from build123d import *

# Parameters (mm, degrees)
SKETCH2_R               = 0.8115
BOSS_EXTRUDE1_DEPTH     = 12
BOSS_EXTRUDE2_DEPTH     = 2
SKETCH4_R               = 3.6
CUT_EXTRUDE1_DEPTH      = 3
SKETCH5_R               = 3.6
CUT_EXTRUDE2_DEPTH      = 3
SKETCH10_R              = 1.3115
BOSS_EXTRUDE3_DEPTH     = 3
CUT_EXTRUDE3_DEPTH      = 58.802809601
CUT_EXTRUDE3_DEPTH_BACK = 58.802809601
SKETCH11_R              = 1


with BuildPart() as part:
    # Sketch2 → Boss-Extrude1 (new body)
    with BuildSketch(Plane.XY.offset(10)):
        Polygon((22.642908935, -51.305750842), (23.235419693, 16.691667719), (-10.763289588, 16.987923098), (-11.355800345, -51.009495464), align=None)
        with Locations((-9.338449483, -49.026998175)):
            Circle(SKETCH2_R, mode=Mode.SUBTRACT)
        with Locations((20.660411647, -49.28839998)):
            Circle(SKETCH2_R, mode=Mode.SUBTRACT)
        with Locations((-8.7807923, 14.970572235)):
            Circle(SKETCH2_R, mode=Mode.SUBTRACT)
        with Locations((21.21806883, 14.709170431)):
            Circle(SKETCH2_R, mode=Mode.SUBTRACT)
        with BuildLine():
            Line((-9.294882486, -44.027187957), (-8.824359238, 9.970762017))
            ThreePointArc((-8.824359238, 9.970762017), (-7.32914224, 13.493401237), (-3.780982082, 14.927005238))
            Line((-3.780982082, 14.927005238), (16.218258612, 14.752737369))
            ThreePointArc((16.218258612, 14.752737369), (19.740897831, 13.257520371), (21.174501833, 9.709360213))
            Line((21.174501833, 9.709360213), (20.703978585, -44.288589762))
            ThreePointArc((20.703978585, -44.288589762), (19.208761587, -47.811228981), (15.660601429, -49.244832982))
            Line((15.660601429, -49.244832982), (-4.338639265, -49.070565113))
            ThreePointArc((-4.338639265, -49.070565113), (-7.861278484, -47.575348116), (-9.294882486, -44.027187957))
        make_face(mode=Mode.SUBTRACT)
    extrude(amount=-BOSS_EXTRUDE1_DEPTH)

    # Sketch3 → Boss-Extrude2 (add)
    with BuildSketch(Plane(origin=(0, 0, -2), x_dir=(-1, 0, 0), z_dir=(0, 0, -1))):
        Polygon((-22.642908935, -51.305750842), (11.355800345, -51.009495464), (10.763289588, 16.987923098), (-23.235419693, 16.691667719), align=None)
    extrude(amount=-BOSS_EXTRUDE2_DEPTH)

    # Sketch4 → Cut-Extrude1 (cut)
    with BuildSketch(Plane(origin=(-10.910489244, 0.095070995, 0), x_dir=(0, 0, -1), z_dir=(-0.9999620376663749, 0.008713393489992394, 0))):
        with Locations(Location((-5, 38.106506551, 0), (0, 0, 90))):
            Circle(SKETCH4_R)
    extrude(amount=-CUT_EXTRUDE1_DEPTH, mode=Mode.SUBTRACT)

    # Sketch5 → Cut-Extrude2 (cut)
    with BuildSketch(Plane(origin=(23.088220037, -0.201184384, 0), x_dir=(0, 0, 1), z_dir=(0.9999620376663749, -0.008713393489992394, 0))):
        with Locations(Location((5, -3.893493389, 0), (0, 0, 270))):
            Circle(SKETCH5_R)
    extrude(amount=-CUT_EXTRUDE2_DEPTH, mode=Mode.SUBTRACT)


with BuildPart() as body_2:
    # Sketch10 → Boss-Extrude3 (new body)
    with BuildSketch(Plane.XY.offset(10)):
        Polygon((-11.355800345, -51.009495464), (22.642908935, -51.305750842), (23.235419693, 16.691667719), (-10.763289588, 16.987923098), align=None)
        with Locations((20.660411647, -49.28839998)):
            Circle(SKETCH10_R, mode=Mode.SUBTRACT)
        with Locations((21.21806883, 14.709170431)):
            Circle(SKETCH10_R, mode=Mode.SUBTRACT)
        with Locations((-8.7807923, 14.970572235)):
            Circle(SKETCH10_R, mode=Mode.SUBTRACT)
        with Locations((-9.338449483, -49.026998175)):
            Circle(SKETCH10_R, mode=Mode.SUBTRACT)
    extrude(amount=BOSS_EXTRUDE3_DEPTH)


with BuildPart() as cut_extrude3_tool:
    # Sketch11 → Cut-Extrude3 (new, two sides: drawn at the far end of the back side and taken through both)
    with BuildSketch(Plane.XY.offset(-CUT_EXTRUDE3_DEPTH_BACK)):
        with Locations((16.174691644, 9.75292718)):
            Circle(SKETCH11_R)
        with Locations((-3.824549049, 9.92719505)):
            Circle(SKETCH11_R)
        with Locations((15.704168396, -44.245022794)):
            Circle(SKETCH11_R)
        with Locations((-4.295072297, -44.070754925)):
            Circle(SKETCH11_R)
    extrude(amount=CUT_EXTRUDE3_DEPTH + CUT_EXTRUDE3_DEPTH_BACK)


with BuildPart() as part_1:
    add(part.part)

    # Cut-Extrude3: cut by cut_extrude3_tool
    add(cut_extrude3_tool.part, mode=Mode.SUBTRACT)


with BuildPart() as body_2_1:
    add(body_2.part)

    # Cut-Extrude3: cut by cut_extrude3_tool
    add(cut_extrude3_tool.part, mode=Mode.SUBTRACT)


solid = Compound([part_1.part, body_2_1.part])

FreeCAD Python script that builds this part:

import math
import FreeCAD as App
import Part
import Sketcher

V = App.Vector


def add_polygon(sketch, points):
    """Adds a closed chain of lines whose ends are joined by coincident constraints."""
    first, n = sketch.GeometryCount, len(points)
    for a, b in zip(points, points[1:] + points[:1]):
        sketch.addGeometry(Part.LineSegment(App.Vector(*a, 0), App.Vector(*b, 0)), False)
    for i in range(n):
        sketch.addConstraint(Sketcher.Constraint("Coincident", first + i, 2, first + (i + 1) % n, 1))

doc = App.newDocument("Part")
body = doc.addObject("PartDesign::Body", "Body")

# Sketch on XY plane
sketch1 = body.newObject("Sketcher::SketchObject", "Sketch")
sketch1.AttachmentSupport = (doc.getObject("XY_Plane"), [""])
sketch1.MapMode = "FlatFace"
sketch1.AttachmentOffset = App.Placement(V(0, 0, 10), App.Rotation())
add_polygon(sketch1, [(22.642909, -51.305751), (23.23542, 16.691668), (-10.76329, 16.987923), (-11.3558, -51.009495)])  # lines 0-3
sketch1.addGeometry(Part.Circle(V(-9.338449, -49.026998, 0), V(0, 0, 1), 0.8115), False)  # 4
sketch1.addGeometry(Part.Circle(V(20.660412, -49.2884, 0), V(0, 0, 1), 0.8115), False)  # 5
sketch1.addGeometry(Part.ArcOfCircle(Part.Circle(V(-4.295072, -44.070755, 0), V(0, 0, 1), 5), math.radians(179.500753), math.radians(269.500753)), False)  # 6
sketch1.addGeometry(Part.LineSegment(V(-9.294882, -44.027188, 0), V(-8.824359, 9.970762, 0)), False)  # 7
sketch1.addGeometry(Part.ArcOfCircle(Part.Circle(V(-3.824549, 9.927195, 0), V(0, 0, 1), 5), math.radians(89.500753), math.radians(179.500753)), False)  # 8
sketch1.addGeometry(Part.LineSegment(V(-3.780982, 14.927005, 0), V(16.218259, 14.752737, 0)), False)  # 9
sketch1.addGeometry(Part.ArcOfCircle(Part.Circle(V(16.174692, 9.752927, 0), V(0, 0, 1), 5), math.radians(-0.499247), math.radians(89.500753)), False)  # 10
sketch1.addGeometry(Part.LineSegment(V(21.174502, 9.70936, 0), V(20.703979, -44.28859, 0)), False)  # 11
sketch1.addGeometry(Part.ArcOfCircle(Part.Circle(V(15.704168, -44.245023, 0), V(0, 0, 1), 5), math.radians(-90.499247), math.radians(-0.499247)), False)  # 12
sketch1.addGeometry(Part.LineSegment(V(15.660601, -49.244833, 0), V(-4.338639, -49.070565, 0)), False)  # 13
sketch1.addGeometry(Part.Circle(V(-8.780792, 14.970572, 0), V(0, 0, 1), 0.8115), False)  # 14
sketch1.addGeometry(Part.Circle(V(21.218069, 14.70917, 0), V(0, 0, 1), 0.8115), False)  # 15
sketch1.addConstraint([
    Sketcher.Constraint("Tangent", 6, 1, 7, 1),
    Sketcher.Constraint("Tangent", 7, 2, 8, 2),
    Sketcher.Constraint("Tangent", 8, 1, 9, 1),
    Sketcher.Constraint("Tangent", 9, 2, 10, 2),
    Sketcher.Constraint("Tangent", 10, 1, 11, 1),
    Sketcher.Constraint("Tangent", 11, 2, 12, 2),
    Sketcher.Constraint("Tangent", 12, 1, 13, 1),
    Sketcher.Constraint("Tangent", 13, 2, 6, 2),
    Sketcher.Constraint("Equal", 4, 5),
    Sketcher.Constraint("Equal", 6, 8),
    Sketcher.Constraint("Equal", 8, 10),
    Sketcher.Constraint("Equal", 10, 12),
    Sketcher.Constraint("Equal", 5, 14),
    Sketcher.Constraint("Equal", 14, 15),
    Sketcher.Constraint("Perpendicular", 0, 1),
    Sketcher.Constraint("Perpendicular", 1, 2),
    Sketcher.Constraint("Perpendicular", 2, 3),
    Sketcher.Constraint("Perpendicular", 3, 7),
    Sketcher.Constraint("Perpendicular", 7, 9),
    Sketcher.Constraint("Perpendicular", 9, 11),
    Sketcher.Constraint("Perpendicular", 11, 13),
    Sketcher.Constraint("Radius", 6, 5.0),
    Sketcher.Constraint("Distance", 0, 68.0),
    Sketcher.Constraint("Distance", 1, 34.0),
    Sketcher.Constraint("Distance", 7, 54.0),
    Sketcher.Constraint("Distance", 9, 20.0),
    Sketcher.Constraint("Diameter", 4, 1.623),
    Sketcher.Constraint("DistanceY", 4, 3, -1, 1, 49.026998),
    Sketcher.Constraint("DistanceY", 5, 3, -1, 1, 49.2884),
    Sketcher.Constraint("DistanceX", 2, 2, -1, 1, 11.3558),
    Sketcher.Constraint("DistanceX", -1, 1, 10, 1, 21.174502),
    Sketcher.Constraint("DistanceX", -1, 1, 12, 1, 15.660601),
    Sketcher.Constraint("DistanceX", 4, 3, 8, 3, 5.5139),
    Sketcher.Constraint("DistanceY", 15, 3, 14, 3, 0.261402),
    Sketcher.Constraint("DistanceX", 12, 3, 15, 3, 5.5139),
    Sketcher.Constraint("DistanceX", -1, 1, 5, 3, 20.660412),
    Sketcher.Constraint("DistanceY", -1, 1, 15, 3, 14.70917),
    Sketcher.Constraint("DistanceY", 3, 2, -1, 1, 51.305751),
    Sketcher.Constraint("DistanceY", -1, 1, 10, 1, 9.70936),
    Sketcher.Constraint("DistanceX", 14, 3, 6, 3, 4.48572),
])
pad1 = body.newObject("PartDesign::Pad", "Pad")
pad1.Profile = sketch1
pad1.Length = 12
pad1.Reversed = True

# Sketch on XY plane
sketch2 = body.newObject("Sketcher::SketchObject", "Sketch001")
sketch2.AttachmentSupport = (doc.getObject("XY_Plane"), [""])
sketch2.MapMode = "FlatFace"
sketch2.AttachmentOffset = App.Placement(V(0, 0, -2), App.Rotation())
add_polygon(sketch2, [(22.642909, -51.305751), (-11.3558, -51.009495), (-10.76329, 16.987923), (23.23542, 16.691668)])  # lines 0-3
sketch2.addConstraint([
    Sketcher.Constraint("Perpendicular", 0, 1),
    Sketcher.Constraint("Perpendicular", 1, 2),
    Sketcher.Constraint("Perpendicular", 2, 3),
    Sketcher.Constraint("Distance", 0, 34.0),
    Sketcher.Constraint("Distance", 1, 68.0),
    Sketcher.Constraint("DistanceX", 0, 2, -1, 1, 11.3558),
    Sketcher.Constraint("DistanceX", 1, 2, 3, 2, 33.406199),
    Sketcher.Constraint("DistanceY", 3, 2, -1, 1, 51.305751),
])
pad2 = body.newObject("PartDesign::Pad", "Pad001")
pad2.Profile = sketch2
pad2.Length = 2

# Sketch on an angled plane
sketch3 = body.newObject("Sketcher::SketchObject", "Sketch002")
sketch3.Placement = App.Placement(V(-10.910489, 0.095071, 0), App.Rotation(V(0, 0, -1), V(-0.008713393, -0.999962038, 0), V(-0.999962038, 0.008713393, 0), "ZXY"))
sketch3.addGeometry(Part.Circle(V(-5, 38.106507, 0), V(0, 0, 1), 3.6), False)
sketch3.addConstraint([
    Sketcher.Constraint("Diameter", 0, 7.2),
    Sketcher.Constraint("DistanceX", 0, 3, -1, 1, 5.0),
    Sketcher.Constraint("DistanceY", -1, 1, 0, 3, 38.106507),
])
pocket1 = body.newObject("PartDesign::Pocket", "Pocket")
pocket1.Profile = sketch3
pocket1.Length = 3

# Sketch on an angled plane
sketch4 = body.newObject("Sketcher::SketchObject", "Sketch003")
sketch4.Placement = App.Placement(V(23.08822, -0.201184, 0), App.Rotation(V(0, 0, 1), V(-0.008713393, -0.999962038, 0), V(0.999962038, -0.008713393, 0), "ZXY"))
sketch4.addGeometry(Part.Circle(V(5, -3.893493, 0), V(0, 0, 1), 3.6), False)
sketch4.addConstraint([
    Sketcher.Constraint("Diameter", 0, 7.2),
    Sketcher.Constraint("DistanceX", -1, 1, 0, 3, 5.0),
    Sketcher.Constraint("DistanceY", 0, 3, -1, 1, 3.893493),
])
pocket2 = body.newObject("PartDesign::Pocket", "Pocket001")
pocket2.Profile = sketch4
pocket2.Length = 3
body2 = doc.addObject("PartDesign::Body", "Body001")

# Sketch on XY plane
sketch5 = body2.newObject("Sketcher::SketchObject", "Sketch004")
sketch5.AttachmentSupport = (doc.getObject("XY_Plane001"), [""])
sketch5.MapMode = "FlatFace"
sketch5.AttachmentOffset = App.Placement(V(0, 0, 10), App.Rotation())
add_polygon(sketch5, [(-11.3558, -51.009495), (22.642909, -51.305751), (23.23542, 16.691668), (-10.76329, 16.987923)])  # lines 0-3
sketch5.addGeometry(Part.Circle(V(-9.338449, -49.026998, 0), V(0, 0, 1), 1.3115), False)  # 4
sketch5.addGeometry(Part.Circle(V(20.660412, -49.2884, 0), V(0, 0, 1), 1.3115), False)  # 5
sketch5.addGeometry(Part.Circle(V(-8.780792, 14.970572, 0), V(0, 0, 1), 1.3115), False)  # 6
sketch5.addGeometry(Part.Circle(V(21.218069, 14.70917, 0), V(0, 0, 1), 1.3115), False)  # 7
sketch5.addConstraint([
    Sketcher.Constraint("Equal", 4, 5),
    Sketcher.Constraint("Equal", 5, 6),
    Sketcher.Constraint("Equal", 6, 7),
    Sketcher.Constraint("Perpendicular", 0, 1),
    Sketcher.Constraint("Perpendicular", 1, 2),
    Sketcher.Constraint("Perpendicular", 2, 3),
    Sketcher.Constraint("Distance", 0, 34.0),
    Sketcher.Constraint("Distance", 1, 68.0),
    Sketcher.Constraint("Diameter", 4, 2.623),
    Sketcher.Constraint("DistanceY", 4, 3, -1, 1, 49.026998),
    Sketcher.Constraint("DistanceY", 5, 3, -1, 1, 49.2884),
    Sketcher.Constraint("DistanceX", 3, 2, -1, 1, 11.3558),
    Sketcher.Constraint("DistanceY", 7, 3, 6, 3, 0.261402),
    Sketcher.Constraint("DistanceX", 6, 3, 0, 2, 31.423701),
    Sketcher.Constraint("DistanceX", 2, 2, 5, 3, 31.423701),
    Sketcher.Constraint("DistanceX", 4, 3, -1, 1, 9.338449),
    Sketcher.Constraint("DistanceX", -1, 1, 5, 3, 20.660412),
    Sketcher.Constraint("DistanceX", -1, 1, 7, 3, 21.218069),
    Sketcher.Constraint("DistanceY", -1, 1, 7, 3, 14.70917),
    Sketcher.Constraint("DistanceY", 0, 2, -1, 1, 51.305751),
])
pad3 = body2.newObject("PartDesign::Pad", "Pad002")
pad3.Profile = sketch5
pad3.Length = 3
body3 = doc.addObject("PartDesign::Body", "Body002")
body3.AllowCompound = True

# Sketch on XY plane
sketch6 = body3.newObject("Sketcher::SketchObject", "Sketch005")
sketch6.AttachmentSupport = (doc.getObject("XY_Plane002"), [""])
sketch6.MapMode = "FlatFace"
sketch6.addGeometry([
    Part.Circle(V(16.174692, 9.752927, 0), V(0, 0, 1), 1),
    Part.Circle(V(-3.824549, 9.927195, 0), V(0, 0, 1), 1),
    Part.Circle(V(15.704168, -44.245023, 0), V(0, 0, 1), 1),
    Part.Circle(V(-4.295072, -44.070755, 0), V(0, 0, 1), 1),
], False)
sketch6.addConstraint([
    Sketcher.Constraint("Equal", 0, 1),
    Sketcher.Constraint("Equal", 1, 2),
    Sketcher.Constraint("Equal", 2, 3),
    Sketcher.Constraint("Diameter", 0, 2.0),
    Sketcher.Constraint("DistanceX", -1, 1, 0, 3, 16.174692),
    Sketcher.Constraint("DistanceX", 1, 3, -1, 1, 3.824549),
    Sketcher.Constraint("DistanceX", -1, 1, 2, 3, 15.704168),
    Sketcher.Constraint("DistanceY", 2, 3, 0, 3, 53.99795),
    Sketcher.Constraint("DistanceX", 3, 3, 2, 3, 19.999241),
    Sketcher.Constraint("DistanceY", 3, 3, 1, 3, 53.99795),
    Sketcher.Constraint("DistanceY", -1, 1, 0, 3, 9.752927),
    Sketcher.Constraint("DistanceY", -1, 1, 1, 3, 9.927195),
])
pad4 = body3.newObject("PartDesign::Pad", "Pad003")
pad4.Profile = sketch6
pad4.Type = "TwoLengths"
pad4.Length = 58.80281
pad4.Length2 = 58.80281
doc.recompute()

body4 = doc.addObject("PartDesign::Body", "Body003")
body4.BaseFeature = body3
boolean = body.newObject("PartDesign::Boolean", "Boolean")
boolean.Type = "Cut"
boolean.addObjects([body4])
doc.recompute()

boolean2 = body2.newObject("PartDesign::Boolean", "Boolean001")
boolean2.Type = "Cut"
boolean2.addObjects([body3])

doc.recompute()
